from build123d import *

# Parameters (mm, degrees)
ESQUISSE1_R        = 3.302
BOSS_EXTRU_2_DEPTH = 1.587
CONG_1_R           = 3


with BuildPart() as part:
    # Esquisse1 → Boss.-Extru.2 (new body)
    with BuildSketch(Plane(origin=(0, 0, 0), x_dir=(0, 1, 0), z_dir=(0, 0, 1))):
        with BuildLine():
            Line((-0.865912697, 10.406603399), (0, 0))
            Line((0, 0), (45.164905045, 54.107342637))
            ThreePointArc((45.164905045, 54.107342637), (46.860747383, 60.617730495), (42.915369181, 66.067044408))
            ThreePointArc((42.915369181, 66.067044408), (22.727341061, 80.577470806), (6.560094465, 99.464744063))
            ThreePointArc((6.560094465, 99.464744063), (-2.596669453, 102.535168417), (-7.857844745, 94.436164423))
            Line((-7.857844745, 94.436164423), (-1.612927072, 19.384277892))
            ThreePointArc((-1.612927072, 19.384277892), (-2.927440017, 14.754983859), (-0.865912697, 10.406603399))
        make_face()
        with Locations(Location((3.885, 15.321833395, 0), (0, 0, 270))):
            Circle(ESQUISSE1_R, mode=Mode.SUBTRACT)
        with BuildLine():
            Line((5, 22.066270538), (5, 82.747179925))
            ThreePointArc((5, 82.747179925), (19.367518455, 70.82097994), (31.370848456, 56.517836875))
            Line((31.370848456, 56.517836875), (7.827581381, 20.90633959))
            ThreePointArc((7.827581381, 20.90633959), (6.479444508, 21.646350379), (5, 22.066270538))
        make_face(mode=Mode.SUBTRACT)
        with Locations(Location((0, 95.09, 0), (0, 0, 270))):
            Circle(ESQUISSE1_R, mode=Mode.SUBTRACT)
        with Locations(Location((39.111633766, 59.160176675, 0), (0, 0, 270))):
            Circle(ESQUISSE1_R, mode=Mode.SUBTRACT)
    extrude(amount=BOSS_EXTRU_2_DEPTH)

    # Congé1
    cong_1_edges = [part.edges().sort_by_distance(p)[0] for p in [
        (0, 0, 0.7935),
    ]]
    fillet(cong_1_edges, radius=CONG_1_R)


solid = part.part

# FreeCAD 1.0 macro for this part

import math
import FreeCAD as App
import Part
import Sketcher
from FreeCAD import Vector
Q = App.Units.Quantity


def edges_at(feature, points):
    """Names of the edges that pass closest to the given points."""
    edges = feature.Shape.Edges
    near = lambda p: min(range(len(edges)), key=lambda i: edges[i].distToShape(Part.Vertex(*p))[0])
    return sorted({f"Edge{near(p) + 1}" for p in points})

doc = App.newDocument("Part")
params = doc.addObject("Spreadsheet::Sheet", "Params")
for row, (alias, value) in enumerate([
    ("sketch1_radius", "104 mm"),
    ("pad1_length", "1.587 mm"),
    ("fillet_radius", "3 mm"),
], start=1):
    params.set(f"A{row}", alias)
    params.set(f"B{row}", "=" + value)
    params.setAlias(f"B{row}", alias)

body = doc.addObject("PartDesign::Body", "Body")

# Sketch on XY plane
sketch1 = body.newObject("Sketcher::SketchObject", "Sketch")
sketch1.AttachmentSupport = (doc.getObject("XY_Plane"), [""])
sketch1.MapMode = "FlatFace"
sketch1.addGeometry([
    Part.LineSegment(Vector(-10.4, -0.9, 0), Vector(0, 0, 0)),  # 0
    Part.LineSegment(Vector(0, 0, 0), Vector(-54.1, 45.2, 0)),  # 1
    Part.ArcOfCircle(Part.Circle(Vector(-59.2, 39.1, 0), Vector(0, 0, 1), 7.9), math.radians(50), math.radians(151)),  # 2
    Part.ArcOfCircle(Part.Circle(Vector(-157.2, 93.1, 0), Vector(0, 0, 1), 104), math.radians(-56), math.radians(-29)),  # 3
    Part.ArcOfCircle(Part.Circle(Vector(-95.1, 0, 0), Vector(0, 0, 1), 7.9), math.radians(124), math.radians(275)),  # 4
    Part.LineSegment(Vector(-94.4, -7.9, 0), Vector(-19.4, -1.6, 0)),  # 5
    Part.ArcOfCircle(Part.Circle(Vector(-15.3, 3.9, 0), Vector(0, 0, 1), 6.8), math.radians(-126), math.radians(-44)),  # 6
    Part.Circle(Vector(-15.3, 3.9, 0), Vector(0, 0, 1), 3.3),  # 7
    Part.ArcOfCircle(Part.Circle(Vector(-15.3, 3.9, 0), Vector(0, 0, 1), 6.8), math.radians(145), math.radians(171)),  # 8
    Part.LineSegment(Vector(-22.1, 5, 0), Vector(-82.7, 5, 0)),  # 9
    Part.ArcOfCircle(Part.Circle(Vector(2.9, -54, 0), Vector(0, 0, 1), 104), math.radians(125), math.radians(145)),  # 10
    Part.LineSegment(Vector(-56.5, 31.4, 0), Vector(-20.9, 7.8, 0)),  # 11
    Part.Circle(Vector(-95.1, 0, 0), Vector(0, 0, 1), 3.3),  # 12
    Part.Circle(Vector(-59.2, 39.1, 0), Vector(0, 0, 1), 3.3),  # 13
], False)
sketch1.addConstraint([
    Sketcher.Constraint("Coincident", 0, 2, 1, 1),
    Sketcher.Constraint("Tangent", 1, 2, 2, 1),
    Sketcher.Constraint("Tangent", 2, 2, 3, 2),
    Sketcher.Constraint("Tangent", 3, 1, 4, 1),
    Sketcher.Constraint("Tangent", 4, 2, 5, 1),
    Sketcher.Constraint("Coincident", 5, 2, 6, 1),
    Sketcher.Constraint("Coincident", 6, 2, 0, 1),
    Sketcher.Constraint("Coincident", 8, 2, 9, 1),
    Sketcher.Constraint("Coincident", 9, 2, 10, 2),
    Sketcher.Constraint("Coincident", 10, 1, 11, 1),
    Sketcher.Constraint("Coincident", 11, 2, 8, 1),
    Sketcher.Constraint("Horizontal", 9),
    Sketcher.Constraint("Coincident", 0, 2, -1, 1),
    Sketcher.Constraint("Coincident", 7, 3, 6, 3),
    Sketcher.Constraint("Coincident", 8, 3, 6, 3),
    Sketcher.Constraint("Coincident", 12, 3, 4, 3),
    Sketcher.Constraint("Coincident", 13, 3, 2, 3),
    Sketcher.Constraint("Equal", 2, 4),
    Sketcher.Constraint("Equal", 6, 8),
    Sketcher.Constraint("Equal", 3, 10),
    Sketcher.Constraint("Equal", 7, 12),
    Sketcher.Constraint("Equal", 12, 13),
    Sketcher.Constraint("PointOnObject", 4, 3, -1),
    Sketcher.Constraint("Parallel", 0, 5),
    Sketcher.Constraint("Radius", 3, Q("104 mm")),
    Sketcher.Constraint("Diameter", 7, Q("6.604 mm")),
    Sketcher.Constraint("DistanceY", -1, 1, 8, 2, Q("5 mm")),
    Sketcher.Constraint("Radius", 2, Q("7.885 mm")),
    Sketcher.Constraint("DistanceX", 4, 3, -1, 1, Q("95.09 mm")),
    Sketcher.Constraint("DistanceY", -1, 1, 6, 3, Q("3.885 mm")),
    Sketcher.Constraint("Radius", 6, Q("6.835983 mm")),
    Sketcher.Constraint("DistanceX", 9, 2, 9, 1, Q("60.680909 mm")),
    Sketcher.Constraint("DistanceX", 2, 2, 1, 2, Q("11.959702 mm")),
    Sketcher.Constraint("DistanceX", 3, 1, 2, 2, Q("33.3977 mm")),
    Sketcher.Constraint("Distance", 5, Q("75.311252 mm")),
    Sketcher.Constraint("Distance", 11, Q("42.690329 mm")),
    Sketcher.Constraint("DistanceX", 8, 2, -1, 1, Q("22.066271 mm")),
    Sketcher.Constraint("DistanceY", -1, 1, 10, 1, Q("31.370848 mm")),
    Sketcher.Constraint("DistanceX", 11, 2, -1, 1, Q("20.90634 mm")),
])
sketch1.setExpression("Constraints[24]", "Params.sketch1_radius")
pad1 = body.newObject("PartDesign::Pad", "Pad")
pad1.Profile = sketch1
pad1.setExpression("Length", "Params.pad1_length")
doc.recompute()

fillet = body.newObject("PartDesign::Fillet", "Fillet")
fillet.Base = (pad1, edges_at(pad1, [(0, 0, 0.793)]))
fillet.setExpression("Radius", "Params.fillet_radius")

doc.recompute()
